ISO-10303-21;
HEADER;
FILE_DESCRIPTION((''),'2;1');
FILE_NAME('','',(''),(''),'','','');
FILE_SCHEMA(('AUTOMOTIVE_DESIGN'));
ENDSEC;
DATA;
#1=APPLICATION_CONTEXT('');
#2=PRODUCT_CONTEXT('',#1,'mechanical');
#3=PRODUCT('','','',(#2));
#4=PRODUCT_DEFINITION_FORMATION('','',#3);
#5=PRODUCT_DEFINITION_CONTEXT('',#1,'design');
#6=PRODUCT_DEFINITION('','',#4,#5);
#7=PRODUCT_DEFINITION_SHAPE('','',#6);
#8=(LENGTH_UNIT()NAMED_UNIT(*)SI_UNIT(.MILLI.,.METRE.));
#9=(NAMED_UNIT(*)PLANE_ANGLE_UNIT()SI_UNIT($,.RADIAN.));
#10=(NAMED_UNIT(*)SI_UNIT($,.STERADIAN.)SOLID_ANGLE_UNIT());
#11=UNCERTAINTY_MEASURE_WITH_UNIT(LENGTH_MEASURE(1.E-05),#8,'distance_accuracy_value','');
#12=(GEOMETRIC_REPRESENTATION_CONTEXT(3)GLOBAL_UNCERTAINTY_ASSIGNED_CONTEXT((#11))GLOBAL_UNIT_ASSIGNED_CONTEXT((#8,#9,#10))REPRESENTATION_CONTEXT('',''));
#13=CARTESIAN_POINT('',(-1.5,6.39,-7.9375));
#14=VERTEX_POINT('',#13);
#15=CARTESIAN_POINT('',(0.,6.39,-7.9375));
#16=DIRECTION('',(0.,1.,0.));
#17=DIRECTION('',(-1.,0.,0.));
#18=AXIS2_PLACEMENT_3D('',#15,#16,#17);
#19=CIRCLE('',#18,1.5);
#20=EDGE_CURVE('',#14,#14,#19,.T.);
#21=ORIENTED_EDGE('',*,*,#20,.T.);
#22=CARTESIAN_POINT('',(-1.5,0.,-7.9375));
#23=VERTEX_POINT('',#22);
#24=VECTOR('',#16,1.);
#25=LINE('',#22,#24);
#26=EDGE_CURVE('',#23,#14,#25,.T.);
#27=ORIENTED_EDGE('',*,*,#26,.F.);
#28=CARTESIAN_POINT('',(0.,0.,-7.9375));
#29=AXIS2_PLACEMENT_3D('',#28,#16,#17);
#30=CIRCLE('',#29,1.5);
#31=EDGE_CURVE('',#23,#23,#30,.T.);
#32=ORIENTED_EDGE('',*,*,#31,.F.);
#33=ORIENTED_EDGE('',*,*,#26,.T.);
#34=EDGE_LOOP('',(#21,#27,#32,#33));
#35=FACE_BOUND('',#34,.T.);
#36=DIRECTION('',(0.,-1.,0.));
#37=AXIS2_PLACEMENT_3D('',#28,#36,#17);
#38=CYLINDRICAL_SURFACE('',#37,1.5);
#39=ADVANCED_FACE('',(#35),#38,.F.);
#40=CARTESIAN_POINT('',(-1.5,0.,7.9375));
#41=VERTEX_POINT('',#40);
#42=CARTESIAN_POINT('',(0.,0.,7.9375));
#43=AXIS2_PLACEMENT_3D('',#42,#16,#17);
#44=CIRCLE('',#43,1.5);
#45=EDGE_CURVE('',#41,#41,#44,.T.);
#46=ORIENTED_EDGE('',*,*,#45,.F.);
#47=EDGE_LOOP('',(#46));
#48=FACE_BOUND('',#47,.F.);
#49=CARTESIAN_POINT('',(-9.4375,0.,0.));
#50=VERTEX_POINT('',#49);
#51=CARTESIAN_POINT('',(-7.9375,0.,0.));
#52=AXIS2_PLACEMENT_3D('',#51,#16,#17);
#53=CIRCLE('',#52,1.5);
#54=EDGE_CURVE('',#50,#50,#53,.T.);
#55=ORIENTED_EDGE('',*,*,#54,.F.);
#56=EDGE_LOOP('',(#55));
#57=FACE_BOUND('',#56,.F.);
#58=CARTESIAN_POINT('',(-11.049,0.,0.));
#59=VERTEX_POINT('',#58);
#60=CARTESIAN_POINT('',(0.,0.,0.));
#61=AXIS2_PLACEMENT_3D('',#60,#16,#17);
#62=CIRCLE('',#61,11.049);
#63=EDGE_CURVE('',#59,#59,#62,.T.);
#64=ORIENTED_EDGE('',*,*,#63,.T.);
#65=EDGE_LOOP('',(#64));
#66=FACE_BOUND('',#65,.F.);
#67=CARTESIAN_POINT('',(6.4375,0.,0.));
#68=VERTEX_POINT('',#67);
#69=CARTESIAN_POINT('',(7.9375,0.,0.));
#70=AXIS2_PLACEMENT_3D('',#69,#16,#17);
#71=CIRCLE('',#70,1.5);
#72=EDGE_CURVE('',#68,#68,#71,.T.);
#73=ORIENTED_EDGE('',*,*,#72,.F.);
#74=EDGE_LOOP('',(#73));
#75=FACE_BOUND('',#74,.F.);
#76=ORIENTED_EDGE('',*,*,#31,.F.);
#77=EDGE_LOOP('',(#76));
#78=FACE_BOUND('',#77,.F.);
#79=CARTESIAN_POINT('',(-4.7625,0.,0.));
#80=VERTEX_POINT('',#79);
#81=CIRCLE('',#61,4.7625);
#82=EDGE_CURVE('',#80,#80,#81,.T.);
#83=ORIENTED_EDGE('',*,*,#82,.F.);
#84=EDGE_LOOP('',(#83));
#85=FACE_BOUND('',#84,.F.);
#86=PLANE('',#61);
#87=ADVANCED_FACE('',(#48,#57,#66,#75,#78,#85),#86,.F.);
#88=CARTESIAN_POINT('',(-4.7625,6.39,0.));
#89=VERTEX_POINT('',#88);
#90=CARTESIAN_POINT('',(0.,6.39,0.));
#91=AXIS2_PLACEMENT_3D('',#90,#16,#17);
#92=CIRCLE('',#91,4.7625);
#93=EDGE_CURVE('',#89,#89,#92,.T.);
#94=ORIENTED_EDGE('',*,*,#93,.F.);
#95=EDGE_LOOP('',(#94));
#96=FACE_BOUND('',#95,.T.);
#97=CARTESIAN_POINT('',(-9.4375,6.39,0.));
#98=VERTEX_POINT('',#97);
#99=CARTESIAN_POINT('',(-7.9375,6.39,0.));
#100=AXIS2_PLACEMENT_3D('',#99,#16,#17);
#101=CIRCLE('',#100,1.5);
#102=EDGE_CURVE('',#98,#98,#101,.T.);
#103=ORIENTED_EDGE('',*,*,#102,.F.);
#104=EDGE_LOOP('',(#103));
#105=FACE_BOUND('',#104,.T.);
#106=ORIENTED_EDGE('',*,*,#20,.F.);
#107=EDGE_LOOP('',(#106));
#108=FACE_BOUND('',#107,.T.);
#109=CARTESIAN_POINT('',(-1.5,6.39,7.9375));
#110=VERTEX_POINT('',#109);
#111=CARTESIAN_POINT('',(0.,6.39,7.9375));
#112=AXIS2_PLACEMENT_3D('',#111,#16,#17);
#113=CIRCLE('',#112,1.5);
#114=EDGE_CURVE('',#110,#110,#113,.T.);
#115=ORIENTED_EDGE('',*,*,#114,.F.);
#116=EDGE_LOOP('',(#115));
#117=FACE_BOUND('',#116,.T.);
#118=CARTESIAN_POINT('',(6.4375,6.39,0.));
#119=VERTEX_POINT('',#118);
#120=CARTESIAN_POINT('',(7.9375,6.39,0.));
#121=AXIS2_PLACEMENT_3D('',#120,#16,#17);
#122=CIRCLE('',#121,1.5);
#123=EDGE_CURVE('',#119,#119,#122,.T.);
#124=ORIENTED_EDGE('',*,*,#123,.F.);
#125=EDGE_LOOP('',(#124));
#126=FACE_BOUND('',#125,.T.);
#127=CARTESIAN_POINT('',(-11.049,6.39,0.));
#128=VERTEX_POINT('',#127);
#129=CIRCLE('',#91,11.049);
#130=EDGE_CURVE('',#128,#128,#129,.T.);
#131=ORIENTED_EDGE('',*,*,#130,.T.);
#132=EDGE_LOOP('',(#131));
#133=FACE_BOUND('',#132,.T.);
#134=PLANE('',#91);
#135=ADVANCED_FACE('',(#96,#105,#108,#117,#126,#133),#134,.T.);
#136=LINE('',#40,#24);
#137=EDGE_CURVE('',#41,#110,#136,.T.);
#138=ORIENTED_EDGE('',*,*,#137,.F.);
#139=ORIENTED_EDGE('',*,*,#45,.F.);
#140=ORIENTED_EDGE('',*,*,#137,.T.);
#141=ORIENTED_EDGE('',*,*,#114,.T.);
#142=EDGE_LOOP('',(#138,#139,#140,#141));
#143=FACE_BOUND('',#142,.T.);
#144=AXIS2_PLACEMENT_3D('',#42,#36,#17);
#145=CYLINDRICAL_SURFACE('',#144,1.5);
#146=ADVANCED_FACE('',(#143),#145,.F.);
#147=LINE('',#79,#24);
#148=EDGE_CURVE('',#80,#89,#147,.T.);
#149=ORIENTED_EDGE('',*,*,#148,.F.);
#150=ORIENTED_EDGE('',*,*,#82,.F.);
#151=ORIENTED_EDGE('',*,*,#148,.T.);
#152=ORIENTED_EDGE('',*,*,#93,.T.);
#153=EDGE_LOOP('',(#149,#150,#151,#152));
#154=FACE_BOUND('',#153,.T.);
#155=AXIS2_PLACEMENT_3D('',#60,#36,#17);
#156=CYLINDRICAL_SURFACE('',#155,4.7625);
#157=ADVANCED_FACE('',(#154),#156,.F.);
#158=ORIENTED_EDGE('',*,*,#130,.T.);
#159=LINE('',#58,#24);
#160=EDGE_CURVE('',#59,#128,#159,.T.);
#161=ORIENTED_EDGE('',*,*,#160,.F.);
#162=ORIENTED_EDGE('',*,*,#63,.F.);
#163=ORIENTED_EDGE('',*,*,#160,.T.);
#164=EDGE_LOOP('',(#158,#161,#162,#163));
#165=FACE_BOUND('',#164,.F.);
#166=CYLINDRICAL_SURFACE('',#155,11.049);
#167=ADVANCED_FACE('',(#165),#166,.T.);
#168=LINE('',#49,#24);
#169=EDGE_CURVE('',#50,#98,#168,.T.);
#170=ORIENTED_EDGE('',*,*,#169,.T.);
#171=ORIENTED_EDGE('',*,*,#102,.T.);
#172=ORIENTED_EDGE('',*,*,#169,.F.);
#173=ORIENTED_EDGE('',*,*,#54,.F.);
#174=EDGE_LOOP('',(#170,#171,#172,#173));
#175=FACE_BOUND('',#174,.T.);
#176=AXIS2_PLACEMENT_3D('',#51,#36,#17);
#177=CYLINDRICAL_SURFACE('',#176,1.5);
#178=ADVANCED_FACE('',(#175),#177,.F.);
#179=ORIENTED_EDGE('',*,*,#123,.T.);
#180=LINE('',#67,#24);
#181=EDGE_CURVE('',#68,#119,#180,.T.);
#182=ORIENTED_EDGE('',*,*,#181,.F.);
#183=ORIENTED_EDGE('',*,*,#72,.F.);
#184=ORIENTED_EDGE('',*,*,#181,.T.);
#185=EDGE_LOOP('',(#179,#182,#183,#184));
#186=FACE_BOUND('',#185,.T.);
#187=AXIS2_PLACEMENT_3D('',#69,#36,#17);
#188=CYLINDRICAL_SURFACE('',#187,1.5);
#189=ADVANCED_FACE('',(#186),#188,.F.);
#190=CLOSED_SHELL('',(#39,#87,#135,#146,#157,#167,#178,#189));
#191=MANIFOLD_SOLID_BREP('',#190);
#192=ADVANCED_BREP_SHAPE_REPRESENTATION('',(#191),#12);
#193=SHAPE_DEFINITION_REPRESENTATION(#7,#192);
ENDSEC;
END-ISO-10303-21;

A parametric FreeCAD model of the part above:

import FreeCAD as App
import Part
import Sketcher

V = App.Vector
Q = App.Units.Quantity

doc = App.newDocument("Part")
body = doc.addObject("PartDesign::Body", "Body")

# Sketch on XZ plane
sketch1 = body.newObject("Sketcher::SketchObject", "Sketch")
sketch1.AttachmentSupport = (doc.getObject("XZ_Plane"), [""])
sketch1.MapMode = "FlatFace"
sketch1.addGeometry(Part.Circle(V(0, 0, 0), V(0, 0, 1), 11), False)
sketch1.addGeometry(Part.Circle(V(0, -7.9, 0), V(0, 0, 1), 1.5), False)
sketch1.addGeometry(Part.Circle(V(7.9, 0, 0), V(0, 0, 1), 1.5), False)
sketch1.addGeometry(Part.Circle(V(0, 0, 0), V(0, 0, 1), 4.8), False)
sketch1.addGeometry(Part.Circle(V(-7.9, 0, 0), V(0, 0, 1), 1.5), False)
sketch1.addGeometry(Part.Circle(V(0, 7.9, 0), V(0, 0, 1), 1.5), False)
sketch1.addConstraint(Sketcher.Constraint("Coincident", 0, 3, -1, 1))
sketch1.addConstraint(Sketcher.Constraint("Coincident", 3, 3, -1, 1))
sketch1.addConstraint(Sketcher.Constraint("Equal", 1, 2))
sketch1.addConstraint(Sketcher.Constraint("Equal", 2, 4))
sketch1.addConstraint(Sketcher.Constraint("Equal", 4, 5))
sketch1.addConstraint(Sketcher.Constraint("Symmetric", 2, 3, 4, 3, -1, 1))
sketch1.addConstraint(Sketcher.Constraint("Symmetric", 1, 3, 5, 3, -1, 1))
sketch1.addConstraint(Sketcher.Constraint("PointOnObject", 1, 3, -2))
sketch1.addConstraint(Sketcher.Constraint("PointOnObject", 2, 3, -1))
sketch1.addConstraint(Sketcher.Constraint("Diameter", 0, Q("0.87 in")))
sketch1.addConstraint(Sketcher.Constraint("Diameter", 3, Q("0.375 in")))
sketch1.addConstraint(Sketcher.Constraint("Diameter", 1, Q("0.1181 in")))
sketch1.addConstraint(Sketcher.Constraint("DistanceY", 1, 3, -1, 1, Q("0.3125 in")))
sketch1.addConstraint(Sketcher.Constraint("DistanceX", -1, 1, 2, 3, Q("0.3125 in")))
pad1 = body.newObject("PartDesign::Pad", "Pad")
pad1.Profile = sketch1
pad1.Length = 6.39
pad1.Reversed = True

doc.recompute()
